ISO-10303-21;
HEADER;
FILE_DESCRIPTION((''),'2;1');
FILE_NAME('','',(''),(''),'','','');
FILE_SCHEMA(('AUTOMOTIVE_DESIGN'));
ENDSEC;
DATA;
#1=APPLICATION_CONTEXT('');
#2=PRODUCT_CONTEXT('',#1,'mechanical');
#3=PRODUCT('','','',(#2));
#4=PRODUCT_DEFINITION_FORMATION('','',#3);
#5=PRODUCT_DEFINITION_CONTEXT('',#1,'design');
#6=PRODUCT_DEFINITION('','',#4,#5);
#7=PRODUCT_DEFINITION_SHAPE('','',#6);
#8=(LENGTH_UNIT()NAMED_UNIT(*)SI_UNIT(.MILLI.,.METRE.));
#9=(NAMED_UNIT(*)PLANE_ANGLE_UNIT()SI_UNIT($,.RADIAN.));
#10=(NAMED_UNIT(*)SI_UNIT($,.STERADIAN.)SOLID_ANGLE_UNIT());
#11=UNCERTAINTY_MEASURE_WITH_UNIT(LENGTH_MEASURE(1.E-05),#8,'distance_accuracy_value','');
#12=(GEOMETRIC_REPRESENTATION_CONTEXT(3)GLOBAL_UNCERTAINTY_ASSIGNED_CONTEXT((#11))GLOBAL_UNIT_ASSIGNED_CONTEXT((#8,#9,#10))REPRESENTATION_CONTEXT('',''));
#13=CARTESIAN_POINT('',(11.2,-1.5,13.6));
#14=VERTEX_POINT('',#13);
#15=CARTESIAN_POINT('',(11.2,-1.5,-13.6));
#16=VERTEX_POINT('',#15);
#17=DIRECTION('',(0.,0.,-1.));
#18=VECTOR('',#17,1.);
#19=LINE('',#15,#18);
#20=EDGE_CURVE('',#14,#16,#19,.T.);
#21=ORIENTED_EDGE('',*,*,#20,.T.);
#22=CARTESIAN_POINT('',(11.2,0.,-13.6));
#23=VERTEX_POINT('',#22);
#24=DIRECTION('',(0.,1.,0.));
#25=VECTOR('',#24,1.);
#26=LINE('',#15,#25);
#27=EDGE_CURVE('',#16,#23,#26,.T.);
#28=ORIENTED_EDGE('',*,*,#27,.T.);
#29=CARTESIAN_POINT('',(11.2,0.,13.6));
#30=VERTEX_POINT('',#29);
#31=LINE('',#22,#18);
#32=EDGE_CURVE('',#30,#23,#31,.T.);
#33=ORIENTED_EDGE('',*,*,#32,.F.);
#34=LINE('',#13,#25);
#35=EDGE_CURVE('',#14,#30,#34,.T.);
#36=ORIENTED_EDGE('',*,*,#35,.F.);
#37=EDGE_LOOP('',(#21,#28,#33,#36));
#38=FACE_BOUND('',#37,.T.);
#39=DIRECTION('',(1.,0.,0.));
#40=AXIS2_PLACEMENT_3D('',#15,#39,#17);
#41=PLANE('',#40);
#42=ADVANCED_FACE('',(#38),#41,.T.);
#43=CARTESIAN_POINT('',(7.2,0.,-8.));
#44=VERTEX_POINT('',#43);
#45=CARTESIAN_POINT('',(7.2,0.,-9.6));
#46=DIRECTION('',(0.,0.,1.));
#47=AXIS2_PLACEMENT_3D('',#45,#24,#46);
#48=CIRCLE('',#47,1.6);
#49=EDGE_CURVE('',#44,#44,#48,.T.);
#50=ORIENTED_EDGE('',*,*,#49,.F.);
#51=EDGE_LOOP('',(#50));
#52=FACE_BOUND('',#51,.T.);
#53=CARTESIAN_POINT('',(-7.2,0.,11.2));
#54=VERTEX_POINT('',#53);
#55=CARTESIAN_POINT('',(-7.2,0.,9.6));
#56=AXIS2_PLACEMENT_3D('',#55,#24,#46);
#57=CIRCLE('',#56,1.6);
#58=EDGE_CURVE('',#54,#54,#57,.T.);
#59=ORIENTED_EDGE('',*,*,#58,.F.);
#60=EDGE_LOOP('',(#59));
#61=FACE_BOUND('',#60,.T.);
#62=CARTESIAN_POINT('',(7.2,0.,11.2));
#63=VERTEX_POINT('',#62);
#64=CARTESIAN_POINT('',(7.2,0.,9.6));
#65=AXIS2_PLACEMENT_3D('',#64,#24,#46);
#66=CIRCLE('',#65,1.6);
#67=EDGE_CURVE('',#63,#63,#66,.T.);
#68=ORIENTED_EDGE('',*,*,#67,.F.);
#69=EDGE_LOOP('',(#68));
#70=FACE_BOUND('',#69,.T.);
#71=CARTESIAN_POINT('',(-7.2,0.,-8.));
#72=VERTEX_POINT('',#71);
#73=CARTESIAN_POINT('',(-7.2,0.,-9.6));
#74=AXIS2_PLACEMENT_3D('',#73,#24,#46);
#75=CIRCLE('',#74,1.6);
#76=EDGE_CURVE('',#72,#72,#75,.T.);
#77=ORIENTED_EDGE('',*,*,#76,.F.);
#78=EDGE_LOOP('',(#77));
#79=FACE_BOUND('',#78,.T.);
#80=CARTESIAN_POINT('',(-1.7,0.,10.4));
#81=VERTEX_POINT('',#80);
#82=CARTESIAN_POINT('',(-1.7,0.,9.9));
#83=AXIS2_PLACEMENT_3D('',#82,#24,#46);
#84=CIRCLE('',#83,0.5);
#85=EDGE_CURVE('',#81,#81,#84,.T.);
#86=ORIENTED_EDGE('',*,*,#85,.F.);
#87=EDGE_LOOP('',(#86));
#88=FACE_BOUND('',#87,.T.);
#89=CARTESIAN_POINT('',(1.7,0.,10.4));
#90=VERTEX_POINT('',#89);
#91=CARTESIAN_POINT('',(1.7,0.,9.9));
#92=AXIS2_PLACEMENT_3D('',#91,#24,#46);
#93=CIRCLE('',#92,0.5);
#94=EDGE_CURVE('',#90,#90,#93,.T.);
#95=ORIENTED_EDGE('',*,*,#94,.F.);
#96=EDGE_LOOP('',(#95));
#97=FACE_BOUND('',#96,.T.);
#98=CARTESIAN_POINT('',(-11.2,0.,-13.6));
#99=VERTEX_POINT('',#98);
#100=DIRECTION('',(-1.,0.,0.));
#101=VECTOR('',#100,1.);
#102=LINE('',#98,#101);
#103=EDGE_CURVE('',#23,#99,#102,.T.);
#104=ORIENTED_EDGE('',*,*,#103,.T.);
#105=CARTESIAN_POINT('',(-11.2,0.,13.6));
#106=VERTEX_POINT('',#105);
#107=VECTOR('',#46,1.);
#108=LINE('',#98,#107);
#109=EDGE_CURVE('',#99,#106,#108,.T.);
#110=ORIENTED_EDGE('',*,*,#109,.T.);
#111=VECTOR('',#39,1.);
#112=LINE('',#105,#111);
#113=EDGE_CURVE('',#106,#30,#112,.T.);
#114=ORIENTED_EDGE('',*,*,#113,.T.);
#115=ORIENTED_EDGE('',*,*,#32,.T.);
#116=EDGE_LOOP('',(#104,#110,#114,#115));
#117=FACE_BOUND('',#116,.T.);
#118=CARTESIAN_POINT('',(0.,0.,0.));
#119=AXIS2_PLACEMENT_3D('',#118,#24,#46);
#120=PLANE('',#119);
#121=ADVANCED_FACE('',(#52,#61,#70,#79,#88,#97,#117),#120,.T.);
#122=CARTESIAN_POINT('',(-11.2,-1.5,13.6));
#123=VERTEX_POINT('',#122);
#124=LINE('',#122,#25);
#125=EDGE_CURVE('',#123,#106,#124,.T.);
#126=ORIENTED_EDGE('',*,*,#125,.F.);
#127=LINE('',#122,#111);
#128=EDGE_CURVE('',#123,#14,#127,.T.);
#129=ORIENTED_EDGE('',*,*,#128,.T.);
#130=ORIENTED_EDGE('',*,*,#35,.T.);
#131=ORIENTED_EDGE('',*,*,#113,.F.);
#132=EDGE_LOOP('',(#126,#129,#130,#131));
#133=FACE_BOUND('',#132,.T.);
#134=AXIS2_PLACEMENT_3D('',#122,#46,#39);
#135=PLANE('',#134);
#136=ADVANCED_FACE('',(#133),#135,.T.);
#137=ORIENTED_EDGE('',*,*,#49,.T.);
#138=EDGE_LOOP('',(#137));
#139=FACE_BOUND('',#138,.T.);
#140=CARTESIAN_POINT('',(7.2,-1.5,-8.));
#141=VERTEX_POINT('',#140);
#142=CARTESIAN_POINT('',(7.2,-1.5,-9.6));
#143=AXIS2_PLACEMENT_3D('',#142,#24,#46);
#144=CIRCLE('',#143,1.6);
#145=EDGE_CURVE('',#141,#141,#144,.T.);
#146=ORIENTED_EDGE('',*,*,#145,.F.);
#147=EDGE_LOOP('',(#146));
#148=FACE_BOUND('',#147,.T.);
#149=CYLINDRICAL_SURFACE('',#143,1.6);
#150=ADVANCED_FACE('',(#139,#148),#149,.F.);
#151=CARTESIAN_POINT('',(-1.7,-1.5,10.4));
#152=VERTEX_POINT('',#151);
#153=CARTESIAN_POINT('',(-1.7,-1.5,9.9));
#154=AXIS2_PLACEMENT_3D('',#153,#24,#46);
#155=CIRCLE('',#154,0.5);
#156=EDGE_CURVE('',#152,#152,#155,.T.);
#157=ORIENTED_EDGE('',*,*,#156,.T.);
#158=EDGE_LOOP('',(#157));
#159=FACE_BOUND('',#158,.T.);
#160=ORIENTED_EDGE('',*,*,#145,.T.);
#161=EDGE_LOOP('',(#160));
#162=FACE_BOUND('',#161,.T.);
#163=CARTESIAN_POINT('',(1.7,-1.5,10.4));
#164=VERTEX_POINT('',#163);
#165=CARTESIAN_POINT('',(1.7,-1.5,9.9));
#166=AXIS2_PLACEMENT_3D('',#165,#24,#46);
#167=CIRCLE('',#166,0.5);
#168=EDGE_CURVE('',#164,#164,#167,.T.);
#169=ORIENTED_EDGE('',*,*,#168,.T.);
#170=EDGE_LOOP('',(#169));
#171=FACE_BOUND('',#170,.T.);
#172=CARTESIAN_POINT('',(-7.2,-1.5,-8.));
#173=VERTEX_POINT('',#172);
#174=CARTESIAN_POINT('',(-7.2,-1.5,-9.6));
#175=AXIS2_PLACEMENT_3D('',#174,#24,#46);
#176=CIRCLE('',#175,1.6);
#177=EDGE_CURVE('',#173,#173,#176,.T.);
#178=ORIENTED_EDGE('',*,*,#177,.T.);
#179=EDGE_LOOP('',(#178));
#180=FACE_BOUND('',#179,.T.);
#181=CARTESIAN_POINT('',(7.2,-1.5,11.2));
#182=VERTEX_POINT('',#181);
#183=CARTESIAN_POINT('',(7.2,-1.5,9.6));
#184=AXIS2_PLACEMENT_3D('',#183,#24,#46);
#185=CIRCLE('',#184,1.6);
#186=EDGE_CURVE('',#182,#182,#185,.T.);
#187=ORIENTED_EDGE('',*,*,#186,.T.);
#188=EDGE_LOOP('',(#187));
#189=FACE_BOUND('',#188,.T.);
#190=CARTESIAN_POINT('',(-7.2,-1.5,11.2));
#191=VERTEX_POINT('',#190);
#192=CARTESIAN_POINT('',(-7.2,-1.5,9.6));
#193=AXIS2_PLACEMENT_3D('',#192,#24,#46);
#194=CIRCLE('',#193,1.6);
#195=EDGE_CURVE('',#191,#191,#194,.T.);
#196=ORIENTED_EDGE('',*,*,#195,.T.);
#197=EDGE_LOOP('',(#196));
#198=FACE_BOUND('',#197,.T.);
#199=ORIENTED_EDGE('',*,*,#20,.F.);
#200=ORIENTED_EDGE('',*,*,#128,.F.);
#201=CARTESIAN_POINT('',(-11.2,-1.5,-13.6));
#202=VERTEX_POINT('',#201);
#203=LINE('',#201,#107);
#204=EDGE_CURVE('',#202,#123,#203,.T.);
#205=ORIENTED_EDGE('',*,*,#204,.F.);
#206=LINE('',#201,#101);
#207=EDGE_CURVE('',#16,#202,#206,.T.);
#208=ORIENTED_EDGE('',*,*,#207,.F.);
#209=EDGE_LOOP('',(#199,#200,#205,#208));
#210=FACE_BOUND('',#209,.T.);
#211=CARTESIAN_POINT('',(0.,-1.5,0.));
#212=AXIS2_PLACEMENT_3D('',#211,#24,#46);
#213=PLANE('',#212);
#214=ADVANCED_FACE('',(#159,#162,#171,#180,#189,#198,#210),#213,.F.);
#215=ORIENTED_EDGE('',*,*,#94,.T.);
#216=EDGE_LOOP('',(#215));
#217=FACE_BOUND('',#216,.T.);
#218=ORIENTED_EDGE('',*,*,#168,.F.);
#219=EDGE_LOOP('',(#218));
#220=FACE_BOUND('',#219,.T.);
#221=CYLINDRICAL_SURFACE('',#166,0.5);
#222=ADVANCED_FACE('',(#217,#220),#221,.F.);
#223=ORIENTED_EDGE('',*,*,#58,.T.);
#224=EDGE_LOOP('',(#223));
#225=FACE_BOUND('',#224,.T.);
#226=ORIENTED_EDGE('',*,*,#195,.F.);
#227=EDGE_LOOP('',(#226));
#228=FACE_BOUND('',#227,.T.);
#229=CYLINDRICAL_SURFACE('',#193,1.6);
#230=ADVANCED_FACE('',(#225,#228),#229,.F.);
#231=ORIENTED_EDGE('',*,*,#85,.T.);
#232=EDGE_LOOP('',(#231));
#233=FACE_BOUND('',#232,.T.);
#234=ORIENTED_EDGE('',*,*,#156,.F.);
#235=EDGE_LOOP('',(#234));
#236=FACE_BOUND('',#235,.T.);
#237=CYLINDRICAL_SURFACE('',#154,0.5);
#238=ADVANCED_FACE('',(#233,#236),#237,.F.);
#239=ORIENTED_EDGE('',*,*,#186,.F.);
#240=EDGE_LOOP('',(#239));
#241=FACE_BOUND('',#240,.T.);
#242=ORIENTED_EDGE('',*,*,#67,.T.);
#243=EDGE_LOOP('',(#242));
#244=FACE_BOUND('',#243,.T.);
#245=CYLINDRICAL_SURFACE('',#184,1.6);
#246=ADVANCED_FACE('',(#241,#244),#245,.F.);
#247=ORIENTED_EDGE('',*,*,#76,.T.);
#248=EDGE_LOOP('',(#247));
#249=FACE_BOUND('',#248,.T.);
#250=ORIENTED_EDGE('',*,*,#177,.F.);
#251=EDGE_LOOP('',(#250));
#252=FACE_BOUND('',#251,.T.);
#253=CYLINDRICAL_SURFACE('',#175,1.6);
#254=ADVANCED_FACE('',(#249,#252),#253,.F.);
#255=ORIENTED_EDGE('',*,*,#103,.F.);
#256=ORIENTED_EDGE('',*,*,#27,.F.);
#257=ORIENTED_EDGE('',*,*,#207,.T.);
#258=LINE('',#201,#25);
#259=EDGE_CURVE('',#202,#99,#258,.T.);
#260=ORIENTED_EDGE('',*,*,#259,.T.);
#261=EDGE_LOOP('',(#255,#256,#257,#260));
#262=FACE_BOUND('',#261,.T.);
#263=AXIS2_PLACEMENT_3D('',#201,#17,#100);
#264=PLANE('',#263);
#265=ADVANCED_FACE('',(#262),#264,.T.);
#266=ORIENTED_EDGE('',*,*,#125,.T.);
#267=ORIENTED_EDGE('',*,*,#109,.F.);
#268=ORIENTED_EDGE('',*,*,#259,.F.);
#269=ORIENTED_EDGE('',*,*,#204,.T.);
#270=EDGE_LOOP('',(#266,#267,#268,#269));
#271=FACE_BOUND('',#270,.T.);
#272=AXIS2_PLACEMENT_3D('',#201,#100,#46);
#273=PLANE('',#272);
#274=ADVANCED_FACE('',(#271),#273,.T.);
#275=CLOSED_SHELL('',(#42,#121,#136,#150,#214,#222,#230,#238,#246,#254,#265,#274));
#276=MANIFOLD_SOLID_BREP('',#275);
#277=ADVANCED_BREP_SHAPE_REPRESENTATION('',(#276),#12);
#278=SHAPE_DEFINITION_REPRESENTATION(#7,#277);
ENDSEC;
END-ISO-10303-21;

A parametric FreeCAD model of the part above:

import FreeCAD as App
import Part
import Sketcher
from FreeCAD import Vector
Q = App.Units.Quantity

doc = App.newDocument("Part")
body = doc.addObject("PartDesign::Body", "Body")

sketch1 = body.newObject("Sketcher::SketchObject", "Sketch")
sketch1.AttachmentSupport = (doc.getObject("XZ_Plane"), [""])
sketch1.MapMode = "FlatFace"
sketch1.addGeometry([
    Part.LineSegment(Vector(-11.2, -13.6, 0), Vector(-11.2, 13.6, 0)),
    Part.LineSegment(Vector(-11.2, 13.6, 0), Vector(11.2, 13.6, 0)),
    Part.LineSegment(Vector(11.2, 13.6, 0), Vector(11.2, -13.6, 0)),
    Part.LineSegment(Vector(11.2, -13.6, 0), Vector(-11.2, -13.6, 0)),
    Part.Circle(Vector(-7.2, 9.6, 0), Vector(0, 0, 1), 1.6),
    Part.Circle(Vector(-1.7, 9.9, 0), Vector(0, 0, 1), 0.5),
    Part.Circle(Vector(1.7, 9.9, 0), Vector(0, 0, 1), 0.5),
    Part.Circle(Vector(7.2, 9.6, 0), Vector(0, 0, 1), 1.6),
    Part.Circle(Vector(-7.2, -9.6, 0), Vector(0, 0, 1), 1.6),
    Part.Circle(Vector(7.2, -9.6, 0), Vector(0, 0, 1), 1.6),
], False)
sketch1.addConstraint([
    Sketcher.Constraint("Coincident", 0, 2, 1, 1),
    Sketcher.Constraint("Coincident", 1, 2, 2, 1),
    Sketcher.Constraint("Coincident", 2, 2, 3, 1),
    Sketcher.Constraint("Coincident", 3, 2, 0, 1),
    Sketcher.Constraint("Vertical", 0),
    Sketcher.Constraint("Horizontal", 1),
    Sketcher.Constraint("Vertical", 2),
    Sketcher.Constraint("Horizontal", 3),
    Sketcher.Constraint("Equal", 5, 6),
    Sketcher.Constraint("Equal", 4, 7),
    Sketcher.Constraint("Equal", 7, 8),
    Sketcher.Constraint("Equal", 8, 9),
    Sketcher.Constraint("Symmetric", 7, 3, 8, 3, -1, 1),
    Sketcher.Constraint("Symmetric", 4, 3, 9, 3, -1, 1),
    Sketcher.Constraint("Symmetric", 0, 2, 2, 2, -1, 1),
    Sketcher.Constraint("Symmetric", 5, 3, 6, 3, -2),
    Sketcher.Constraint("Symmetric", 4, 3, 7, 3, -2),
    Sketcher.Constraint("Diameter", 5, Q("1 mm")),
    Sketcher.Constraint("Diameter", 4, Q("3.2 mm")),
    Sketcher.Constraint("DistanceX", 1, 1, 1, 2, Q("22.4 mm")),
    Sketcher.Constraint("DistanceY", 0, 1, 0, 2, Q("27.2 mm")),
    Sketcher.Constraint("DistanceX", 0, 2, 4, 3, Q("4 mm")),
    Sketcher.Constraint("DistanceY", 4, 3, 0, 2, Q("4 mm")),
    Sketcher.Constraint("DistanceX", 5, 3, -1, 1, Q("1.7 mm")),
    Sketcher.Constraint("DistanceY", -1, 1, 5, 3, Q("9.9 mm")),
])
pad1 = body.newObject("PartDesign::Pad", "Pad")
pad1.Profile = sketch1
pad1.Length = 1.5

doc.recompute()
